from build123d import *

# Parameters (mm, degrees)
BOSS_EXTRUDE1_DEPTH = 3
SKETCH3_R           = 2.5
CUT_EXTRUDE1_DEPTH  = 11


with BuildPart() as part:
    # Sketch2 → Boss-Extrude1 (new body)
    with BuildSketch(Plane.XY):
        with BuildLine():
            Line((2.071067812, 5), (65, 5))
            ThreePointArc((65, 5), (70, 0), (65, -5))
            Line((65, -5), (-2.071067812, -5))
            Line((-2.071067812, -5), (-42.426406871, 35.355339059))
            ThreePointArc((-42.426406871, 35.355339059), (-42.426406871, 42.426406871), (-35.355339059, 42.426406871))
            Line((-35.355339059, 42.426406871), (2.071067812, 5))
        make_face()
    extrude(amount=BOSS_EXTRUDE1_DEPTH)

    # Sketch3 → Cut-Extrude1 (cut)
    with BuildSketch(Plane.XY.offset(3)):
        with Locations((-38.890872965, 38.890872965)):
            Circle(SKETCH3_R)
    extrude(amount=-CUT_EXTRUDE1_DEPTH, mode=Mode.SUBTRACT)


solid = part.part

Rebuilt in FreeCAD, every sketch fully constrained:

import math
import FreeCAD as App
import Part
import Sketcher
Q = App.Units.Quantity

doc = App.newDocument("Part")
body = doc.addObject("PartDesign::Body", "Body")

sketch1 = body.newObject("Sketcher::SketchObject", "Sketch")
sketch1.AttachmentSupport = (doc.getObject("XY_Plane"), [""])
sketch1.MapMode = "FlatFace"
sketch1.addGeometry([
    Part.LineSegment(App.Vector(65, 5, 0), App.Vector(2, 5, 0)),
    Part.LineSegment(App.Vector(2, 5, 0), App.Vector(-35, 42, 0)),
    Part.ArcOfCircle(Part.Circle(App.Vector(-39, 39, 0), App.Vector(0, 0, 1), 5), math.radians(45), math.radians(225)),
    Part.LineSegment(App.Vector(-42, 35, 0), App.Vector(-2, -5, 0)),
    Part.LineSegment(App.Vector(-2, -5, 0), App.Vector(65, -5, 0)),
    Part.ArcOfCircle(Part.Circle(App.Vector(65, 0, 0), App.Vector(0, 0, 1), 5), math.radians(-90), math.radians(90)),
], False)
sketch1.addConstraint([
    Sketcher.Constraint("Coincident", 0, 2, 1, 1),
    Sketcher.Constraint("Tangent", 1, 2, 2, 1),
    Sketcher.Constraint("Tangent", 2, 2, 3, 1),
    Sketcher.Constraint("Coincident", 3, 2, 4, 1),
    Sketcher.Constraint("Tangent", 4, 2, 5, 1),
    Sketcher.Constraint("Tangent", 5, 2, 0, 1),
    Sketcher.Constraint("Horizontal", 0),
    Sketcher.Constraint("Horizontal", 4),
    Sketcher.Constraint("Equal", 2, 5),
    Sketcher.Constraint("Symmetric", 0, 2, 3, 2, -1, 1),
    Sketcher.Constraint("Parallel", 1, 3),
    Sketcher.Constraint("Radius", 2, 5.0),
    Sketcher.Constraint("Angle", 1, Q("135 deg")),
    Sketcher.Constraint("DistanceX", -1, 1, 5, 3, 65.0),
    Sketcher.Constraint("DistanceX", 1, 2, -1, 1, 35.355339),
])
pad1 = body.newObject("PartDesign::Pad", "Pad")
pad1.Profile = sketch1
pad1.Length = 3

sketch2 = body.newObject("Sketcher::SketchObject", "Sketch001")
sketch2.AttachmentSupport = (doc.getObject("XY_Plane"), [""])
sketch2.MapMode = "FlatFace"
sketch2.AttachmentOffset = App.Placement(App.Vector(0, 0, 3), App.Rotation())
sketch2.addGeometry(Part.Circle(App.Vector(-38.9, 38.9, 0), App.Vector(0, 0, 1), 2.5), False)
sketch2.addConstraint([
    Sketcher.Constraint("Diameter", 0, 5.0),
    Sketcher.Constraint("DistanceX", 0, 3, -1, 1, 38.890873),
    Sketcher.Constraint("DistanceY", -1, 1, 0, 3, 38.890873),
])
pocket1 = body.newObject("PartDesign::Pocket", "Pocket")
pocket1.Profile = sketch2
pocket1.Length = 11

doc.recompute()
